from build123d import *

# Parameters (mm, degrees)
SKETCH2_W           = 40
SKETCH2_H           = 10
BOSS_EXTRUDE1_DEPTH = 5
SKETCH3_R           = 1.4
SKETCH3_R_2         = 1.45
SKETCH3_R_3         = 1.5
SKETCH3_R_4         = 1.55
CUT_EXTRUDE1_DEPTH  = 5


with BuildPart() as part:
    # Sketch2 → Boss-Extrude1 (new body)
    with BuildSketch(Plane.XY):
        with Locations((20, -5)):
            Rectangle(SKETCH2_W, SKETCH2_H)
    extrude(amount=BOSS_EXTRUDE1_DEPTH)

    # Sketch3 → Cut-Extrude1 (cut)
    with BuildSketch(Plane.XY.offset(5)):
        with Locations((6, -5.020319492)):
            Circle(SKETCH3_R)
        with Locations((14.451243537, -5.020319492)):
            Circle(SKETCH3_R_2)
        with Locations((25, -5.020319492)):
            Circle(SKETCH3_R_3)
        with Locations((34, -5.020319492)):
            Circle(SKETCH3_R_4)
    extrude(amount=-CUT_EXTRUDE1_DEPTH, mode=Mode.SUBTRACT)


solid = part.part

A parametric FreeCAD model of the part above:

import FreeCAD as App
import Part
import Sketcher

doc = App.newDocument("Part")
body = doc.addObject("PartDesign::Body", "Body")

# Sketch on XY plane
sketch1 = body.newObject("Sketcher::SketchObject", "Sketch")
sketch1.AttachmentSupport = (doc.getObject("XY_Plane"), [""])
sketch1.MapMode = "FlatFace"
sketch1.addGeometry(Part.LineSegment(App.Vector(0, 0, 0), App.Vector(0, -10, 0)), False)
sketch1.addGeometry(Part.LineSegment(App.Vector(0, -10, 0), App.Vector(40, -10, 0)), False)
sketch1.addGeometry(Part.LineSegment(App.Vector(40, -10, 0), App.Vector(40, 0, 0)), False)
sketch1.addGeometry(Part.LineSegment(App.Vector(40, 0, 0), App.Vector(0, 0, 0)), False)
sketch1.addConstraint(Sketcher.Constraint("Coincident", 0, 2, 1, 1))
sketch1.addConstraint(Sketcher.Constraint("Coincident", 1, 2, 2, 1))
sketch1.addConstraint(Sketcher.Constraint("Coincident", 2, 2, 3, 1))
sketch1.addConstraint(Sketcher.Constraint("Coincident", 3, 2, 0, 1))
sketch1.addConstraint(Sketcher.Constraint("Vertical", 0))
sketch1.addConstraint(Sketcher.Constraint("Horizontal", 1))
sketch1.addConstraint(Sketcher.Constraint("Vertical", 2))
sketch1.addConstraint(Sketcher.Constraint("Horizontal", 3))
sketch1.addConstraint(Sketcher.Constraint("Coincident", 3, 2, -1, 1))
sketch1.addConstraint(Sketcher.Constraint("DistanceX", 1, 1, 1, 2, 40.0))
sketch1.addConstraint(Sketcher.Constraint("DistanceY", 0, 2, 0, 1, 10.0))
pad1 = body.newObject("PartDesign::Pad", "Pad")
pad1.Profile = sketch1
pad1.Length = 5

# Sketch on XY plane
sketch2 = body.newObject("Sketcher::SketchObject", "Sketch001")
sketch2.AttachmentSupport = (doc.getObject("XY_Plane"), [""])
sketch2.MapMode = "FlatFace"
sketch2.AttachmentOffset = App.Placement(App.Vector(0, 0, 5), App.Rotation())
sketch2.addGeometry(Part.Circle(App.Vector(6, -5.020319, 0), App.Vector(0, 0, 1), 1.4), False)
sketch2.addGeometry(Part.Circle(App.Vector(14.451244, -5.020319, 0), App.Vector(0, 0, 1), 1.45), False)
sketch2.addGeometry(Part.Circle(App.Vector(25, -5.020319, 0), App.Vector(0, 0, 1), 1.5), False)
sketch2.addGeometry(Part.Circle(App.Vector(34, -5.020319, 0), App.Vector(0, 0, 1), 1.55), False)
sketch2.addConstraint(Sketcher.Constraint("Horizontal", 0, 3, 1, 3))
sketch2.addConstraint(Sketcher.Constraint("Horizontal", 1, 3, 2, 3))
sketch2.addConstraint(Sketcher.Constraint("Horizontal", 2, 3, 3, 3))
sketch2.addConstraint(Sketcher.Constraint("Diameter", 2, 3.0))
sketch2.addConstraint(Sketcher.Constraint("Diameter", 0, 2.8))
sketch2.addConstraint(Sketcher.Constraint("Diameter", 1, 2.9))
sketch2.addConstraint(Sketcher.Constraint("Diameter", 3, 3.1))
sketch2.addConstraint(Sketcher.Constraint("DistanceX", -1, 1, 0, 3, 6.0))
sketch2.addConstraint(Sketcher.Constraint("DistanceX", -1, 1, 2, 3, 25.0))
sketch2.addConstraint(Sketcher.Constraint("DistanceX", -1, 1, 3, 3, 34.0))
sketch2.addConstraint(Sketcher.Constraint("DistanceY", 0, 3, -1, 1, 5.020319))
sketch2.addConstraint(Sketcher.Constraint("DistanceX", -1, 1, 1, 3, 14.451244))
pocket1 = body.newObject("PartDesign::Pocket", "Pocket")
pocket1.Profile = sketch2
pocket1.Length = 5

doc.recompute()
